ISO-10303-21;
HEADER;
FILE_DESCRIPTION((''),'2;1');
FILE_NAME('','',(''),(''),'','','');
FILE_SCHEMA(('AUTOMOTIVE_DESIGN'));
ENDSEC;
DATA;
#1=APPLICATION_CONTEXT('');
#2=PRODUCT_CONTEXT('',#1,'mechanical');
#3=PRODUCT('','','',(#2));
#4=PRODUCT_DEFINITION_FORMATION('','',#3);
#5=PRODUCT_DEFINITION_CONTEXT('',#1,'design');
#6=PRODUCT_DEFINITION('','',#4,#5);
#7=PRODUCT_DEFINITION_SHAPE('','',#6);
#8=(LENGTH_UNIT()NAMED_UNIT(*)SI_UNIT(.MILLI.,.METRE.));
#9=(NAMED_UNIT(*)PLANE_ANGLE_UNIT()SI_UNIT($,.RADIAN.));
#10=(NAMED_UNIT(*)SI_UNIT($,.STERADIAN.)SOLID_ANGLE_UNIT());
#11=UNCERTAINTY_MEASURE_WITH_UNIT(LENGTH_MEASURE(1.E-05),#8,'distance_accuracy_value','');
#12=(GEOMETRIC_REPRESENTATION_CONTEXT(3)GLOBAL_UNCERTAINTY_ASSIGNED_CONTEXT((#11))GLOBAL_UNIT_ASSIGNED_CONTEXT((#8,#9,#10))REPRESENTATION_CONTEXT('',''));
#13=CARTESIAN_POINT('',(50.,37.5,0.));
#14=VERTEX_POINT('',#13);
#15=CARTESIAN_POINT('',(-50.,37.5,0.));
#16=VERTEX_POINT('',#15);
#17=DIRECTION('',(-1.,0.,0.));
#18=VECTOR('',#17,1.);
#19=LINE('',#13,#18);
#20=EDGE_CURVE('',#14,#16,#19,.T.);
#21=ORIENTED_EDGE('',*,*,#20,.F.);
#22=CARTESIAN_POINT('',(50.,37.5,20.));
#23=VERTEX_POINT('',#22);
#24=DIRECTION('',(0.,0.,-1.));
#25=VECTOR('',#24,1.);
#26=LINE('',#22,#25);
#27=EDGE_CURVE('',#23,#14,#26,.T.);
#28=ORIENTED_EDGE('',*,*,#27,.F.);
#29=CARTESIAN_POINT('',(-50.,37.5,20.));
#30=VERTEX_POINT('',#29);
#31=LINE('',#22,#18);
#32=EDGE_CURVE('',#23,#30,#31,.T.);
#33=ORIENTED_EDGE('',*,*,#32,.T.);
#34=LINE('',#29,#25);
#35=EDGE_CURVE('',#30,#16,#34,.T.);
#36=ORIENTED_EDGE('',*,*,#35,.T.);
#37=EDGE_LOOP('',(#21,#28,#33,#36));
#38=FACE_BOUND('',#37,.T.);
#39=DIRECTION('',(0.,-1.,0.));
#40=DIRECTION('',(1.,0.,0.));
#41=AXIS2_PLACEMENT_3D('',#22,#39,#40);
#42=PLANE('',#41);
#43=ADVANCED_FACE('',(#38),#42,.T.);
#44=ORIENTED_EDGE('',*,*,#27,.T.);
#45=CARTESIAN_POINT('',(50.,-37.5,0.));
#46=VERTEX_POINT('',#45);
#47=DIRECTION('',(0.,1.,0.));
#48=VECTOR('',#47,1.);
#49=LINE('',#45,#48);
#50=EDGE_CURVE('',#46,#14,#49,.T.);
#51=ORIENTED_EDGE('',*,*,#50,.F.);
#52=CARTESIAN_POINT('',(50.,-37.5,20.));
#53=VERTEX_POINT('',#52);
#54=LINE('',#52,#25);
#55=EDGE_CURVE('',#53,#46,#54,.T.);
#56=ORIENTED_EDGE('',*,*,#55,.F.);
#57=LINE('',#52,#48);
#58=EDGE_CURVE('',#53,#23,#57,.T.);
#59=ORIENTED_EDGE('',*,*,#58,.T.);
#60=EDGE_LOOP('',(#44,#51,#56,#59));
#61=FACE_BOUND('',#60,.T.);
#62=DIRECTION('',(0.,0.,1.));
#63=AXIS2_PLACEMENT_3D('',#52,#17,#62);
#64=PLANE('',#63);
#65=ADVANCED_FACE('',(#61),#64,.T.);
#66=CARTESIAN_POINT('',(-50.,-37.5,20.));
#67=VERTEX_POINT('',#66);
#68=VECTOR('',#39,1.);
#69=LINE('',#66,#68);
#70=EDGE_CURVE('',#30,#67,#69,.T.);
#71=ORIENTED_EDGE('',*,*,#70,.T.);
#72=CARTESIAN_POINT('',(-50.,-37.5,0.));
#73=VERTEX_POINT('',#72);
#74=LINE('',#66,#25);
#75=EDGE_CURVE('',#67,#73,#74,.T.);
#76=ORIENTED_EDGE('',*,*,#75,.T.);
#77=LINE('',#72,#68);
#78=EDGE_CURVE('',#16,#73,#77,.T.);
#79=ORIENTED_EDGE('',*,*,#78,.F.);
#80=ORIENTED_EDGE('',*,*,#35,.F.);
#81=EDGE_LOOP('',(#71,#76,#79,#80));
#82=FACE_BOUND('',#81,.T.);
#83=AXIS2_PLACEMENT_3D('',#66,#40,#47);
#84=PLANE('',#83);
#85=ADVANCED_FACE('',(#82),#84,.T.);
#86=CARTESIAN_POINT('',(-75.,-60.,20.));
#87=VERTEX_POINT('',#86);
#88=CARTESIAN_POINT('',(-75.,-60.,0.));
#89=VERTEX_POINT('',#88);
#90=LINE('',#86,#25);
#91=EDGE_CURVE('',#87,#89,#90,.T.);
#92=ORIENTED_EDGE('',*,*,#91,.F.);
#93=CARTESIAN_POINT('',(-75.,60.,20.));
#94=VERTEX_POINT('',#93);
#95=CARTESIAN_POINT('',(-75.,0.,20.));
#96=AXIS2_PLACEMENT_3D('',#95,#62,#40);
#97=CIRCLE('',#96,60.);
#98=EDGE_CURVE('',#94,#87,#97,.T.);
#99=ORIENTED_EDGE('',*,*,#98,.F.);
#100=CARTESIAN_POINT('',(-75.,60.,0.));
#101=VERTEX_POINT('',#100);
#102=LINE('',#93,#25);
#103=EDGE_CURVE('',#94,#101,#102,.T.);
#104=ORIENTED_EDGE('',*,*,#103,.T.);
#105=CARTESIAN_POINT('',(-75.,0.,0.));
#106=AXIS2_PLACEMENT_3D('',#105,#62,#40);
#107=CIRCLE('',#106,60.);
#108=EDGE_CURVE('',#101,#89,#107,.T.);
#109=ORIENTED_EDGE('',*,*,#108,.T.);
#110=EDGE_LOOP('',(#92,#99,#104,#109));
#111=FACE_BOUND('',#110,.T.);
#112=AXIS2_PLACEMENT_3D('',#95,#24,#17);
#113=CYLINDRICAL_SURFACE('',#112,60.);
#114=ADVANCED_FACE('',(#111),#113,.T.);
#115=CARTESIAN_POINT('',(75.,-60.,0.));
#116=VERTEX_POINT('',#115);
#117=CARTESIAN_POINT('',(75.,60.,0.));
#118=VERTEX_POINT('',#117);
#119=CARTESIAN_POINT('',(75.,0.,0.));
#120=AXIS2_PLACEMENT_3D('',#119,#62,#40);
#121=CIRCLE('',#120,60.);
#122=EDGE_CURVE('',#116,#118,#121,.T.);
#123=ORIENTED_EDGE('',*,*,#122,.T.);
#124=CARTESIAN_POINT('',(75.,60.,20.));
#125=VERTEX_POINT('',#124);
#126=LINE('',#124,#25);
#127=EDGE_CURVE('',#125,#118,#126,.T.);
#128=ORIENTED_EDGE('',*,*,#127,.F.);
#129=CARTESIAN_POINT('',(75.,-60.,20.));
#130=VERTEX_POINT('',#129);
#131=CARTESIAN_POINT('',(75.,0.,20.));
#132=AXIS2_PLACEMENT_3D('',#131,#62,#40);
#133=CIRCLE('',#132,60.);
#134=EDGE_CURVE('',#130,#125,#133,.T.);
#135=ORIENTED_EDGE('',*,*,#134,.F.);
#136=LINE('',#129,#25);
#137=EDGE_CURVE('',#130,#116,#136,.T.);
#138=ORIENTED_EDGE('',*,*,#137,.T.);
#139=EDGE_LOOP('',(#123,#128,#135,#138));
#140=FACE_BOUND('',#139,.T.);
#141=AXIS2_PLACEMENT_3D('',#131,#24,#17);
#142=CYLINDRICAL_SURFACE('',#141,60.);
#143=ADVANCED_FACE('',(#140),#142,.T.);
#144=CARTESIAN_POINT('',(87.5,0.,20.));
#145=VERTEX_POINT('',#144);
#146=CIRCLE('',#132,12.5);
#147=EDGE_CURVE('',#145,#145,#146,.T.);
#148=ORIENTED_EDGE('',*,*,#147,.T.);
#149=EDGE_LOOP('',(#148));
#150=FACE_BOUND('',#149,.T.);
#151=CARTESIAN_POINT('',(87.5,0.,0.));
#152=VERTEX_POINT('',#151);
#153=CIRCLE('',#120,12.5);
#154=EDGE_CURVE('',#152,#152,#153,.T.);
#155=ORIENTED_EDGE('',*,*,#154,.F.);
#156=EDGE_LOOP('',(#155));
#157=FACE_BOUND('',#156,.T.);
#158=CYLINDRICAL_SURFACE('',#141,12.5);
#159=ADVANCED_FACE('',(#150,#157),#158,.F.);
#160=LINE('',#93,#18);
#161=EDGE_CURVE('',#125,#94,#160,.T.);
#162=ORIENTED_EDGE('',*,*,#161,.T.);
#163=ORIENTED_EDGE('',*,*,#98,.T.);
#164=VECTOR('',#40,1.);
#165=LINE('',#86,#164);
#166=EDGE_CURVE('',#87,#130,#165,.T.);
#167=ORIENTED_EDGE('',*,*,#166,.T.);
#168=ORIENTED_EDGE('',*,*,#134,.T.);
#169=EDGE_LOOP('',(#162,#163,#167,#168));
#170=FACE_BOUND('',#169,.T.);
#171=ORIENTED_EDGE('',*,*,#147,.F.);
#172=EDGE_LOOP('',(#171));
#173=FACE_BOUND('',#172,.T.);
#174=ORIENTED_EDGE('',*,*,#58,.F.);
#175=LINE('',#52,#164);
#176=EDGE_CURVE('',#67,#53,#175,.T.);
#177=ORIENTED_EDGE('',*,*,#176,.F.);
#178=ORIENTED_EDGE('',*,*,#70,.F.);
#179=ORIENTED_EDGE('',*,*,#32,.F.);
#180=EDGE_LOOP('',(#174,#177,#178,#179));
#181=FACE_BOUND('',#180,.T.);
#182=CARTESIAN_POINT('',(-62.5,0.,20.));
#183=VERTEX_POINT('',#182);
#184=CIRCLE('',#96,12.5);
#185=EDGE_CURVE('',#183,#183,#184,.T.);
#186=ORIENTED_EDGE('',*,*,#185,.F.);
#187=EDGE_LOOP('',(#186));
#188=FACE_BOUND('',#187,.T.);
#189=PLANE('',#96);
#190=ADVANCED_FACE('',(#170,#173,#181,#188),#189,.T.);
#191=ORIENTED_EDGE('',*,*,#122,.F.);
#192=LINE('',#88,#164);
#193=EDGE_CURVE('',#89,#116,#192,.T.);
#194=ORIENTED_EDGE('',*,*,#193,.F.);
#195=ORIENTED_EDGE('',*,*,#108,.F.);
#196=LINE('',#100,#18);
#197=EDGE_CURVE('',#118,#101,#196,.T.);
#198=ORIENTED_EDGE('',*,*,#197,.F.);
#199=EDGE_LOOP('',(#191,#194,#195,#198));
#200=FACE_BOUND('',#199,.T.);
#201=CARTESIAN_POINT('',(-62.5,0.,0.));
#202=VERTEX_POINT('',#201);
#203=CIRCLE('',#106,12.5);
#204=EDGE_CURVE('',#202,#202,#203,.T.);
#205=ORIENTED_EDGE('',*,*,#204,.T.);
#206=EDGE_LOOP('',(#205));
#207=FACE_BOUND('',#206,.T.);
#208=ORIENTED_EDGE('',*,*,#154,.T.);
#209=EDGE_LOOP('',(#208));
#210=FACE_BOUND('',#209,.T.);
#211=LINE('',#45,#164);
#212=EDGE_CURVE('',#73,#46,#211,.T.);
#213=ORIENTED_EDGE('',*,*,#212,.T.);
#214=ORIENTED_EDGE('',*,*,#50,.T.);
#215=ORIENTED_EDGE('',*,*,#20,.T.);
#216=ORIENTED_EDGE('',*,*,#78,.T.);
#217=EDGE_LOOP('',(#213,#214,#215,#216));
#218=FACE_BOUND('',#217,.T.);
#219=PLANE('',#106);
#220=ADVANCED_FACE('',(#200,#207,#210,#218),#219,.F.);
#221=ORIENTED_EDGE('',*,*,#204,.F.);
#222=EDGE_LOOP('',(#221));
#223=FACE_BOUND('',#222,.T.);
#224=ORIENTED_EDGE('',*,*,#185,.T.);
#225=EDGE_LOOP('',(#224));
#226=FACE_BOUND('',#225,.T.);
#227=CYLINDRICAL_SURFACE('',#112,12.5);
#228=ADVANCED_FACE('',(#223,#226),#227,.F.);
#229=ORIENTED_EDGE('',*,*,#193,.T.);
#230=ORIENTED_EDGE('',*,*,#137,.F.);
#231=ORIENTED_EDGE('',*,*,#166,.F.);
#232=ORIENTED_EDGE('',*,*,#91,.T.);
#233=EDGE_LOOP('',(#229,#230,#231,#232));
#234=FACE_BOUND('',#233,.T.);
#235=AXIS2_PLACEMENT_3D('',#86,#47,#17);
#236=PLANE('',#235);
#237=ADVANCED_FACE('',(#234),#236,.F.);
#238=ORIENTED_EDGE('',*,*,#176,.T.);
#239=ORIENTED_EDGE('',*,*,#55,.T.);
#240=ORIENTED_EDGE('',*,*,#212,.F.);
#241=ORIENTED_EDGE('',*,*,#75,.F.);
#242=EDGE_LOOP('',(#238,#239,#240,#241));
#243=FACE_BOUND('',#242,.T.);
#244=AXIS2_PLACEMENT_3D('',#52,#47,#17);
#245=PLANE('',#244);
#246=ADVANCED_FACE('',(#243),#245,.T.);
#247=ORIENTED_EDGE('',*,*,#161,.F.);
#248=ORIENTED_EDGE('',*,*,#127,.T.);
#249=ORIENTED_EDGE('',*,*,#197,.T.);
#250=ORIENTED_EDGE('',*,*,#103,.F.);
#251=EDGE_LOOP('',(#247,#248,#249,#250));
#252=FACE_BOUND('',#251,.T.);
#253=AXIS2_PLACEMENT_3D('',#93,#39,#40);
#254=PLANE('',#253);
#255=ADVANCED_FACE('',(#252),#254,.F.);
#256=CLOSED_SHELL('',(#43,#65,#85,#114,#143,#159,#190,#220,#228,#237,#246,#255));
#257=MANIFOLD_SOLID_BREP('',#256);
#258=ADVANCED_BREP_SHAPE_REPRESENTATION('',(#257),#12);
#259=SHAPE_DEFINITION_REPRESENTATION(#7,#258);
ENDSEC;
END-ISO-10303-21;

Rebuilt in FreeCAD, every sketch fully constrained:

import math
import FreeCAD as App
import Part
import Sketcher

V = App.Vector


def add_polygon(sketch, points):
    """Adds a closed chain of lines whose ends are joined by coincident constraints."""
    first, n = sketch.GeometryCount, len(points)
    for a, b in zip(points, points[1:] + points[:1]):
        sketch.addGeometry(Part.LineSegment(App.Vector(*a, 0), App.Vector(*b, 0)), False)
    for i in range(n):
        sketch.addConstraint(Sketcher.Constraint("Coincident", first + i, 2, first + (i + 1) % n, 1))

doc = App.newDocument("Part")
body = doc.addObject("PartDesign::Body", "Body")

sketch1 = body.newObject("Sketcher::SketchObject", "Sketch")
sketch1.AttachmentSupport = (doc.getObject("XY_Plane"), [""])
sketch1.MapMode = "FlatFace"
sketch1.addGeometry(Part.LineSegment(V(75, 60, 0), V(-75, 60, 0)), False)
sketch1.addGeometry(Part.ArcOfCircle(Part.Circle(V(-75, 0, 0), V(0, 0, 1), 60), math.radians(90), math.radians(270)), False)
sketch1.addGeometry(Part.LineSegment(V(-75, -60, 0), V(75, -60, 0)), False)
sketch1.addGeometry(Part.ArcOfCircle(Part.Circle(V(75, 0, 0), V(0, 0, 1), 60), math.radians(-90), math.radians(90)), False)
sketch1.addGeometry(Part.Circle(V(75, 0, 0), V(0, 0, 1), 12), False)
add_polygon(sketch1, [(-50, -38), (-50, 38), (50, 38), (50, -38)])
sketch1.addGeometry(Part.Circle(V(-75, 0, 0), V(0, 0, 1), 12), False)
sketch1.addConstraint([
    Sketcher.Constraint("Tangent", 0, 2, 1, 1),
    Sketcher.Constraint("Tangent", 1, 2, 2, 1),
    Sketcher.Constraint("Tangent", 2, 2, 3, 1),
    Sketcher.Constraint("Tangent", 3, 2, 0, 1),
    Sketcher.Constraint("Horizontal", 0),
    Sketcher.Constraint("Horizontal", 2),
    Sketcher.Constraint("Vertical", 5),
    Sketcher.Constraint("Horizontal", 6),
    Sketcher.Constraint("Vertical", 7),
    Sketcher.Constraint("Horizontal", 8),
    Sketcher.Constraint("Coincident", 4, 3, 3, 3),
    Sketcher.Constraint("Coincident", 9, 3, 1, 3),
    Sketcher.Constraint("Equal", 4, 9),
    Sketcher.Constraint("Symmetric", 1, 3, 3, 3, -1, 1),
    Sketcher.Constraint("Symmetric", 5, 2, 7, 2, -1, 1),
    Sketcher.Constraint("Diameter", 4, 25.0),
    Sketcher.Constraint("Radius", 1, 60.0),
    Sketcher.Constraint("DistanceX", 0, 2, 0, 1, 150.0),
    Sketcher.Constraint("DistanceX", 6, 1, 6, 2, 100.0),
    Sketcher.Constraint("DistanceY", 5, 1, 5, 2, 75.0),
])
pad1 = body.newObject("PartDesign::Pad", "Pad")
pad1.Profile = sketch1
pad1.Length = 20

doc.recompute()
